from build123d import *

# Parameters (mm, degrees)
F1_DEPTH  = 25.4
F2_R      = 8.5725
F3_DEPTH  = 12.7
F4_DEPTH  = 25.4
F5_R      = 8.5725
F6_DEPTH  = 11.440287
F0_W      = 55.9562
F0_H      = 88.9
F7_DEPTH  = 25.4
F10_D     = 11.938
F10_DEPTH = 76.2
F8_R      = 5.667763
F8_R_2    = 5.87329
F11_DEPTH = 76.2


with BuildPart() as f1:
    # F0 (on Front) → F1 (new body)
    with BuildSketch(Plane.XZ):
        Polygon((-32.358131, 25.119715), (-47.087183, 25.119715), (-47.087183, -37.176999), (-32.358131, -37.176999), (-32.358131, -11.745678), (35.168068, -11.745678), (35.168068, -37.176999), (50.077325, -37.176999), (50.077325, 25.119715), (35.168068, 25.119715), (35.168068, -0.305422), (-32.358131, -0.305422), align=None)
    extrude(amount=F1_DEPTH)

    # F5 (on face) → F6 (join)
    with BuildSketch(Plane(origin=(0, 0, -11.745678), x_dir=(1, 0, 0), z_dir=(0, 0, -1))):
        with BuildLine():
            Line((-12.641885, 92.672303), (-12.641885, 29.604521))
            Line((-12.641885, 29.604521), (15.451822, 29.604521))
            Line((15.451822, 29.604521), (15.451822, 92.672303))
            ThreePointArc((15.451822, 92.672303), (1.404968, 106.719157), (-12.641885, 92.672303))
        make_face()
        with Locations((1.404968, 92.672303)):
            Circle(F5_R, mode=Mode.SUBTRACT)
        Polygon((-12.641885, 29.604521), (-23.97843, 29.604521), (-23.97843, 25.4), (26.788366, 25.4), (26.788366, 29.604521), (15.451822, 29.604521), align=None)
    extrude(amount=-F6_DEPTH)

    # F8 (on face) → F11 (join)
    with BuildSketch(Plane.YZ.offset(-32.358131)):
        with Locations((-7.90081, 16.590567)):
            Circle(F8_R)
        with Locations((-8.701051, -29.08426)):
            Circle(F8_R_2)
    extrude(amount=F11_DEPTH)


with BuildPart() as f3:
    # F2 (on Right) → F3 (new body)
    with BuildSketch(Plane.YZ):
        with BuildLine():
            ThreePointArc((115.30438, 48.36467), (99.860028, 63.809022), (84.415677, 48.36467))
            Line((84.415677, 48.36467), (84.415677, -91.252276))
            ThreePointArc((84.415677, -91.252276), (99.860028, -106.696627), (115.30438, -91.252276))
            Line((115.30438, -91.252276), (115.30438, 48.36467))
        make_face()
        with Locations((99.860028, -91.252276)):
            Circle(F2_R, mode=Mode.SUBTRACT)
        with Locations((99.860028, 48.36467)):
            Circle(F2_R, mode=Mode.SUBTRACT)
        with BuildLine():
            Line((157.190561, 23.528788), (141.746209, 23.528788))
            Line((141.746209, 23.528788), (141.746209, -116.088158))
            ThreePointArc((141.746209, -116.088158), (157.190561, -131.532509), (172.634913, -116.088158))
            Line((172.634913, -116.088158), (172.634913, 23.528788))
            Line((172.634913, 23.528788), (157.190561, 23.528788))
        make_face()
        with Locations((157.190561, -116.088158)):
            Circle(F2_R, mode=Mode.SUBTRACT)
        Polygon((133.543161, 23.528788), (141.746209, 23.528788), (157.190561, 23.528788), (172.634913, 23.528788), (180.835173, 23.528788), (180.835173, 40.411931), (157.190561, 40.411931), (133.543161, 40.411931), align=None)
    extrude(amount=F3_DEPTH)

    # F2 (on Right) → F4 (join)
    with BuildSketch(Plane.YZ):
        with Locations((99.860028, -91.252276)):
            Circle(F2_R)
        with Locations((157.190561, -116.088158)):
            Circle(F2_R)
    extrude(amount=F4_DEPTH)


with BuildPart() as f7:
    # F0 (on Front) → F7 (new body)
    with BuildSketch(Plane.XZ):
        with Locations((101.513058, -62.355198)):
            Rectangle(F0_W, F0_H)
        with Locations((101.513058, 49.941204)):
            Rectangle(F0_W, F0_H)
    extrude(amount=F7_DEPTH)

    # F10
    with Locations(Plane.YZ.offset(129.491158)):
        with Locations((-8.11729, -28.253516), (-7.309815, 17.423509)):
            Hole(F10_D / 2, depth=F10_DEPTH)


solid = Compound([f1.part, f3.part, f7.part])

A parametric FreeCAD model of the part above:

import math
import FreeCAD as App
import Part
import Sketcher
from FreeCAD import Vector
Q = App.Units.Quantity


def add_polygon(sketch, points):
    """Adds a closed chain of lines whose ends are joined by coincident constraints."""
    first, n = sketch.GeometryCount, len(points)
    for a, b in zip(points, points[1:] + points[:1]):
        sketch.addGeometry(Part.LineSegment(App.Vector(*a, 0), App.Vector(*b, 0)), False)
    for i in range(n):
        sketch.addConstraint(Sketcher.Constraint("Coincident", first + i, 2, first + (i + 1) % n, 1))

doc = App.newDocument("Part")
body = doc.addObject("PartDesign::Body", "Body")

# Sketch on XZ plane
sketch1 = body.newObject("Sketcher::SketchObject", "Sketch")
sketch1.AttachmentSupport = (doc.getObject("XZ_Plane"), [""])
sketch1.MapMode = "FlatFace"
add_polygon(sketch1, [(-32, 25), (-47, 25), (-47, -37), (-32, -37), (-32, -12), (35, -12), (35, -37), (50, -37), (50, 25), (35, 25), (35, 0), (-32, 0)])  # lines 0-11
sketch1.addConstraint(Sketcher.Constraint("Horizontal", 0))
sketch1.addConstraint(Sketcher.Constraint("Vertical", 1))
sketch1.addConstraint(Sketcher.Constraint("Horizontal", 2))
sketch1.addConstraint(Sketcher.Constraint("Vertical", 3))
sketch1.addConstraint(Sketcher.Constraint("Horizontal", 4))
sketch1.addConstraint(Sketcher.Constraint("Vertical", 5))
sketch1.addConstraint(Sketcher.Constraint("Horizontal", 6))
sketch1.addConstraint(Sketcher.Constraint("Vertical", 7))
sketch1.addConstraint(Sketcher.Constraint("Horizontal", 8))
sketch1.addConstraint(Sketcher.Constraint("Vertical", 9))
sketch1.addConstraint(Sketcher.Constraint("Horizontal", 10))
sketch1.addConstraint(Sketcher.Constraint("Vertical", 11))
sketch1.addConstraint(Sketcher.Constraint("Horizontal", 2, 2, 5, 2))
sketch1.addConstraint(Sketcher.Constraint("Horizontal", 0, 2, 7, 2))
sketch1.addConstraint(Sketcher.Constraint("Vertical", 5, 2, 8, 2))
sketch1.addConstraint(Sketcher.Constraint("Vertical", 3, 2, 10, 2))
sketch1.addConstraint(Sketcher.Constraint("DistanceX", 4, 1, 4, 2, 67.526199))
sketch1.addConstraint(Sketcher.Constraint("DistanceY", 3, 1, 3, 2, 25.431321))
sketch1.addConstraint(Sketcher.Constraint("DistanceY", 1, 2, -1, 1, 37.176999))
sketch1.addConstraint(Sketcher.Constraint("DistanceX", 0, 2, 0, 1, 14.729052))
sketch1.addConstraint(Sketcher.Constraint("DistanceX", 6, 1, 6, 2, 14.909257))
sketch1.addConstraint(Sketcher.Constraint("DistanceY", 1, 2, 1, 1, 62.296714))
sketch1.addConstraint(Sketcher.Constraint("DistanceY", 9, 2, 9, 1, 25.425137))
sketch1.addConstraint(Sketcher.Constraint("DistanceX", 2, 2, -1, 1, 32.358131))
pad1 = body.newObject("PartDesign::Pad", "Pad")
pad1.Profile = sketch1
pad1.Length = Q("1 in")

# Sketch on XY plane
sketch2 = body.newObject("Sketcher::SketchObject", "Sketch001")
sketch2.AttachmentSupport = (doc.getObject("XY_Plane"), [""])
sketch2.MapMode = "FlatFace"
sketch2.AttachmentOffset = App.Placement(Vector(0, 0, -11.745678), App.Rotation())
sketch2.addGeometry(Part.LineSegment(Vector(-12.6, -92.7, 0), Vector(-12.6, -29.6, 0)), False)
sketch2.addGeometry(Part.LineSegment(Vector(-12.6, -29.6, 0), Vector(-24, -29.6, 0)), False)
sketch2.addGeometry(Part.LineSegment(Vector(-24, -29.6, 0), Vector(-24, -25.4, 0)), False)
sketch2.addGeometry(Part.LineSegment(Vector(-24, -25.4, 0), Vector(26.8, -25.4, 0)), False)
sketch2.addGeometry(Part.LineSegment(Vector(26.8, -25.4, 0), Vector(26.8, -29.6, 0)), False)
sketch2.addGeometry(Part.LineSegment(Vector(26.8, -29.6, 0), Vector(15.5, -29.6, 0)), False)
sketch2.addGeometry(Part.LineSegment(Vector(15.5, -29.6, 0), Vector(15.5, -92.7, 0)), False)
sketch2.addGeometry(Part.ArcOfCircle(Part.Circle(Vector(1.4, -92.7, 0), Vector(0, 0, 1), 14), math.radians(180), math.radians(360)), False)
sketch2.addGeometry(Part.Circle(Vector(1.4, -92.7, 0), Vector(0, 0, 1), 8.6), False)
sketch2.addConstraint(Sketcher.Constraint("Coincident", 0, 2, 1, 1))
sketch2.addConstraint(Sketcher.Constraint("Coincident", 1, 2, 2, 1))
sketch2.addConstraint(Sketcher.Constraint("Coincident", 2, 2, 3, 1))
sketch2.addConstraint(Sketcher.Constraint("Coincident", 3, 2, 4, 1))
sketch2.addConstraint(Sketcher.Constraint("Coincident", 4, 2, 5, 1))
sketch2.addConstraint(Sketcher.Constraint("Coincident", 5, 2, 6, 1))
sketch2.addConstraint(Sketcher.Constraint("Tangent", 6, 2, 7, 2))
sketch2.addConstraint(Sketcher.Constraint("Tangent", 7, 1, 0, 1))
sketch2.addConstraint(Sketcher.Constraint("Vertical", 0))
sketch2.addConstraint(Sketcher.Constraint("Horizontal", 1))
sketch2.addConstraint(Sketcher.Constraint("Vertical", 2))
sketch2.addConstraint(Sketcher.Constraint("Horizontal", 3))
sketch2.addConstraint(Sketcher.Constraint("Vertical", 4))
sketch2.addConstraint(Sketcher.Constraint("Horizontal", 5))
sketch2.addConstraint(Sketcher.Constraint("Vertical", 6))
sketch2.addConstraint(Sketcher.Constraint("Coincident", 8, 3, 7, 3))
sketch2.addConstraint(Sketcher.Constraint("Horizontal", 1, 2, 4, 2))
sketch2.addConstraint(Sketcher.Constraint("Equal", 1, 5))
sketch2.addConstraint(Sketcher.Constraint("Diameter", 8, Q("0.675 in")))
sketch2.addConstraint(Sketcher.Constraint("DistanceY", 2, 2, -1, 1, Q("1 in")))
sketch2.addConstraint(Sketcher.Constraint("Radius", 7, 14.046853))
sketch2.addConstraint(Sketcher.Constraint("DistanceY", 2, 1, 2, 2, 4.204521))
sketch2.addConstraint(Sketcher.Constraint("DistanceX", 1, 2, 7, 3, 25.383398))
sketch2.addConstraint(Sketcher.Constraint("DistanceY", 0, 1, 0, 2, 63.067782))
sketch2.addConstraint(Sketcher.Constraint("DistanceX", -1, 1, 7, 3, 1.404969))
pad2 = body.newObject("PartDesign::Pad", "Pad001")
pad2.Profile = sketch2
pad2.Length = 11.440287

# Sketch on YZ plane
sketch3 = body.newObject("Sketcher::SketchObject", "Sketch002")
sketch3.AttachmentSupport = (doc.getObject("YZ_Plane"), [""])
sketch3.MapMode = "FlatFace"
sketch3.AttachmentOffset = App.Placement(Vector(0, 0, -32.358131), App.Rotation())
sketch3.addGeometry(Part.Circle(Vector(-8, 17, 0), Vector(0, 0, 1), 6), False)
sketch3.addGeometry(Part.Circle(Vector(-9, -29, 0), Vector(0, 0, 1), 6), False)
sketch3.addConstraint(Sketcher.Constraint("Diameter", 1, 11.74658))
sketch3.addConstraint(Sketcher.Constraint("Diameter", 0, 11.335526))
sketch3.addConstraint(Sketcher.Constraint("DistanceX", 0, 3, -1, 1, 7.90081))
sketch3.addConstraint(Sketcher.Constraint("DistanceX", 1, 3, -1, 1, 8.701051))
sketch3.addConstraint(Sketcher.Constraint("DistanceY", 1, 3, -1, 1, 29.08426))
sketch3.addConstraint(Sketcher.Constraint("DistanceY", -1, 1, 0, 3, 16.590567))
pad3 = body.newObject("PartDesign::Pad", "Pad002")
pad3.Profile = sketch3
pad3.Length = Q("3 in")
body2 = doc.addObject("PartDesign::Body", "Body001")
body2.AllowCompound = True

# Sketch on YZ plane
sketch4 = body2.newObject("Sketcher::SketchObject", "Sketch003")
sketch4.AttachmentSupport = (doc.getObject("YZ_Plane001"), [""])
sketch4.MapMode = "FlatFace"
sketch4.addGeometry(Part.ArcOfCircle(Part.Circle(Vector(100, 48, 0), Vector(0, 0, 1), 15), math.radians(0), math.radians(180)), False)
sketch4.addGeometry(Part.LineSegment(Vector(84, 48, 0), Vector(84, -91, 0)), False)
sketch4.addGeometry(Part.ArcOfCircle(Part.Circle(Vector(100, -91, 0), Vector(0, 0, 1), 15), math.radians(-180), math.radians(0)), False)
sketch4.addGeometry(Part.LineSegment(Vector(115, -91, 0), Vector(115, 48, 0)), False)
sketch4.addGeometry(Part.Circle(Vector(100, -91, 0), Vector(0, 0, 1), 9), False)
sketch4.addGeometry(Part.Circle(Vector(100, 48, 0), Vector(0, 0, 1), 9), False)
sketch4.addGeometry(Part.LineSegment(Vector(142, 24, 0), Vector(142, -116, 0)), False)
sketch4.addGeometry(Part.ArcOfCircle(Part.Circle(Vector(157, -116, 0), Vector(0, 0, 1), 15), math.radians(-180), math.radians(0)), False)
sketch4.addGeometry(Part.LineSegment(Vector(173, -116, 0), Vector(173, 24, 0)), False)
sketch4.addGeometry(Part.LineSegment(Vector(173, 24, 0), Vector(181, 24, 0)), False)
sketch4.addGeometry(Part.LineSegment(Vector(181, 24, 0), Vector(181, 40, 0)), False)
sketch4.addGeometry(Part.LineSegment(Vector(181, 40, 0), Vector(134, 40, 0)), False)
sketch4.addGeometry(Part.LineSegment(Vector(134, 40, 0), Vector(134, 24, 0)), False)
sketch4.addGeometry(Part.LineSegment(Vector(134, 24, 0), Vector(142, 24, 0)), False)
sketch4.addGeometry(Part.Circle(Vector(157, -116, 0), Vector(0, 0, 1), 9), False)
sketch4.addConstraint(Sketcher.Constraint("Tangent", 0, 2, 1, 1))
sketch4.addConstraint(Sketcher.Constraint("Tangent", 1, 2, 2, 1))
sketch4.addConstraint(Sketcher.Constraint("Tangent", 2, 2, 3, 1))
sketch4.addConstraint(Sketcher.Constraint("Tangent", 3, 2, 0, 1))
sketch4.addConstraint(Sketcher.Constraint("Tangent", 6, 2, 7, 1))
sketch4.addConstraint(Sketcher.Constraint("Tangent", 7, 2, 8, 1))
sketch4.addConstraint(Sketcher.Constraint("Coincident", 8, 2, 9, 1))
sketch4.addConstraint(Sketcher.Constraint("Coincident", 9, 2, 10, 1))
sketch4.addConstraint(Sketcher.Constraint("Coincident", 10, 2, 11, 1))
sketch4.addConstraint(Sketcher.Constraint("Coincident", 11, 2, 12, 1))
sketch4.addConstraint(Sketcher.Constraint("Coincident", 12, 2, 13, 1))
sketch4.addConstraint(Sketcher.Constraint("Coincident", 13, 2, 6, 1))
sketch4.addConstraint(Sketcher.Constraint("Vertical", 1))
sketch4.addConstraint(Sketcher.Constraint("Vertical", 3))
sketch4.addConstraint(Sketcher.Constraint("Vertical", 6))
sketch4.addConstraint(Sketcher.Constraint("Vertical", 8))
sketch4.addConstraint(Sketcher.Constraint("Horizontal", 9))
sketch4.addConstraint(Sketcher.Constraint("Vertical", 10))
sketch4.addConstraint(Sketcher.Constraint("Horizontal", 11))
sketch4.addConstraint(Sketcher.Constraint("Vertical", 12))
sketch4.addConstraint(Sketcher.Constraint("Horizontal", 13))
sketch4.addConstraint(Sketcher.Constraint("Coincident", 4, 3, 2, 3))
sketch4.addConstraint(Sketcher.Constraint("Coincident", 5, 3, 0, 3))
sketch4.addConstraint(Sketcher.Constraint("Coincident", 14, 3, 7, 3))
sketch4.addConstraint(Sketcher.Constraint("Equal", 4, 5))
sketch4.addConstraint(Sketcher.Constraint("Equal", 2, 7))
sketch4.addConstraint(Sketcher.Constraint("Equal", 5, 14))
sketch4.addConstraint(Sketcher.Constraint("Horizontal", 9, 2, 12, 2))
sketch4.addConstraint(Sketcher.Constraint("Equal", 3, 6))
sketch4.addConstraint(Sketcher.Constraint("Diameter", 4, Q("0.675 in")))
sketch4.addConstraint(Sketcher.Constraint("Radius", 0, 15.444351))
sketch4.addConstraint(Sketcher.Constraint("DistanceY", 7, 3, -1, 1, Q("4.5703999 in")))
sketch4.addConstraint(Sketcher.Constraint("DistanceY", 10, 2, 3, 2, Q("0.3131 in")))
sketch4.addConstraint(Sketcher.Constraint("DistanceX", 9, 1, 9, 2, 8.20026))
sketch4.addConstraint(Sketcher.Constraint("DistanceX", 11, 2, 11, 1, 47.292012))
sketch4.addConstraint(Sketcher.Constraint("DistanceY", 1, 2, 1, 1, 139.616946))
sketch4.addConstraint(Sketcher.Constraint("DistanceY", 10, 1, 10, 2, 16.883143))
sketch4.addConstraint(Sketcher.Constraint("DistanceX", -1, 1, 0, 3, 99.860028))
sketch4.addConstraint(Sketcher.Constraint("DistanceX", -1, 1, 7, 3, 157.190561))
pad4 = body2.newObject("PartDesign::Pad", "Pad003")
pad4.Profile = sketch4
pad4.Length = Q("0.5 in")

# Sketch on YZ plane
sketch5 = body2.newObject("Sketcher::SketchObject", "Sketch004")
sketch5.AttachmentSupport = (doc.getObject("YZ_Plane001"), [""])
sketch5.MapMode = "FlatFace"
sketch5.addGeometry(Part.Circle(Vector(100, -91, 0), Vector(0, 0, 1), 9), False)
sketch5.addGeometry(Part.Circle(Vector(157, -116, 0), Vector(0, 0, 1), 9), False)
sketch5.addConstraint(Sketcher.Constraint("Equal", 0, 1))
sketch5.addConstraint(Sketcher.Constraint("Diameter", 0, Q("0.675 in")))
sketch5.addConstraint(Sketcher.Constraint("DistanceY", 1, 3, -1, 1, Q("4.5703999 in")))
sketch5.addConstraint(Sketcher.Constraint("DistanceX", -1, 1, 0, 3, 99.860028))
sketch5.addConstraint(Sketcher.Constraint("DistanceX", -1, 1, 1, 3, 157.190561))
sketch5.addConstraint(Sketcher.Constraint("DistanceY", 0, 3, -1, 1, 91.252276))
pad5 = body2.newObject("PartDesign::Pad", "Pad004")
pad5.Profile = sketch5
pad5.Length = Q("1 in")
body3 = doc.addObject("PartDesign::Body", "Body002")
body3.AllowCompound = True

# Sketch on XZ plane
sketch6 = body3.newObject("Sketcher::SketchObject", "Sketch005")
sketch6.AttachmentSupport = (doc.getObject("XZ_Plane002"), [""])
sketch6.MapMode = "FlatFace"
add_polygon(sketch6, [(74, -18), (74, -107), (129, -107), (129, -18)])  # lines 0-3
add_polygon(sketch6, [(74, 94), (74, 5), (129, 5), (129, 94)])  # lines 4-7
sketch6.addConstraint(Sketcher.Constraint("Vertical", 0))
sketch6.addConstraint(Sketcher.Constraint("Horizontal", 1))
sketch6.addConstraint(Sketcher.Constraint("Vertical", 2))
sketch6.addConstraint(Sketcher.Constraint("Horizontal", 3))
sketch6.addConstraint(Sketcher.Constraint("Vertical", 4))
sketch6.addConstraint(Sketcher.Constraint("Horizontal", 5))
sketch6.addConstraint(Sketcher.Constraint("Vertical", 6))
sketch6.addConstraint(Sketcher.Constraint("Horizontal", 7))
sketch6.addConstraint(Sketcher.Constraint("Vertical", 3, 2, 4, 2))
sketch6.addConstraint(Sketcher.Constraint("Vertical", 2, 2, 5, 2))
sketch6.addConstraint(Sketcher.Constraint("Equal", 2, 4))
sketch6.addConstraint(Sketcher.Constraint("DistanceY", 0, 2, 0, 1, Q("3.5 in")))
sketch6.addConstraint(Sketcher.Constraint("DistanceX", 1, 1, 1, 2, Q("2.203 in")))
sketch6.addConstraint(Sketcher.Constraint("DistanceY", 0, 2, -1, 1, 106.805198))
sketch6.addConstraint(Sketcher.Constraint("DistanceY", 3, 2, 4, 2, 23.396402))
sketch6.addConstraint(Sketcher.Constraint("DistanceX", -1, 1, 0, 2, 73.534958))
pad6 = body3.newObject("PartDesign::Pad", "Pad005")
pad6.Profile = sketch6
pad6.Length = Q("1 in")

# Sketch on YZ plane
sketch7 = body3.newObject("Sketcher::SketchObject", "Sketch006")
sketch7.AttachmentSupport = (doc.getObject("YZ_Plane002"), [""])
sketch7.MapMode = "FlatFace"
sketch7.AttachmentOffset = App.Placement(Vector(0, 0, 129.491158), App.Rotation())
sketch7.addGeometry(Part.Circle(Vector(-8, -28, 0), Vector(0, 0, 1), 6), False)
sketch7.addGeometry(Part.Circle(Vector(-7, 17, 0), Vector(0, 0, 1), 6), False)
sketch7.addConstraint(Sketcher.Constraint("Equal", 0, 1))
sketch7.addConstraint(Sketcher.Constraint("Diameter", 0, Q("0.47 in")))
sketch7.addConstraint(Sketcher.Constraint("DistanceX", 0, 3, -1, 1, 8.11729))
sketch7.addConstraint(Sketcher.Constraint("DistanceY", -1, 1, 1, 3, 17.423509))
sketch7.addConstraint(Sketcher.Constraint("DistanceY", 0, 3, -1, 1, 28.253516))
sketch7.addConstraint(Sketcher.Constraint("DistanceX", 1, 3, -1, 1, 7.309815))
doc.recompute()
hole = body3.newObject("PartDesign::Hole", "Hole")
hole.Profile = sketch7
hole.ThreadType = "None"
hole.Diameter = Q("0.47 in")
hole.DepthType = "Dimension"
hole.Depth = Q("3 in")
hole.DrillPoint = "Flat"

doc.recompute()
